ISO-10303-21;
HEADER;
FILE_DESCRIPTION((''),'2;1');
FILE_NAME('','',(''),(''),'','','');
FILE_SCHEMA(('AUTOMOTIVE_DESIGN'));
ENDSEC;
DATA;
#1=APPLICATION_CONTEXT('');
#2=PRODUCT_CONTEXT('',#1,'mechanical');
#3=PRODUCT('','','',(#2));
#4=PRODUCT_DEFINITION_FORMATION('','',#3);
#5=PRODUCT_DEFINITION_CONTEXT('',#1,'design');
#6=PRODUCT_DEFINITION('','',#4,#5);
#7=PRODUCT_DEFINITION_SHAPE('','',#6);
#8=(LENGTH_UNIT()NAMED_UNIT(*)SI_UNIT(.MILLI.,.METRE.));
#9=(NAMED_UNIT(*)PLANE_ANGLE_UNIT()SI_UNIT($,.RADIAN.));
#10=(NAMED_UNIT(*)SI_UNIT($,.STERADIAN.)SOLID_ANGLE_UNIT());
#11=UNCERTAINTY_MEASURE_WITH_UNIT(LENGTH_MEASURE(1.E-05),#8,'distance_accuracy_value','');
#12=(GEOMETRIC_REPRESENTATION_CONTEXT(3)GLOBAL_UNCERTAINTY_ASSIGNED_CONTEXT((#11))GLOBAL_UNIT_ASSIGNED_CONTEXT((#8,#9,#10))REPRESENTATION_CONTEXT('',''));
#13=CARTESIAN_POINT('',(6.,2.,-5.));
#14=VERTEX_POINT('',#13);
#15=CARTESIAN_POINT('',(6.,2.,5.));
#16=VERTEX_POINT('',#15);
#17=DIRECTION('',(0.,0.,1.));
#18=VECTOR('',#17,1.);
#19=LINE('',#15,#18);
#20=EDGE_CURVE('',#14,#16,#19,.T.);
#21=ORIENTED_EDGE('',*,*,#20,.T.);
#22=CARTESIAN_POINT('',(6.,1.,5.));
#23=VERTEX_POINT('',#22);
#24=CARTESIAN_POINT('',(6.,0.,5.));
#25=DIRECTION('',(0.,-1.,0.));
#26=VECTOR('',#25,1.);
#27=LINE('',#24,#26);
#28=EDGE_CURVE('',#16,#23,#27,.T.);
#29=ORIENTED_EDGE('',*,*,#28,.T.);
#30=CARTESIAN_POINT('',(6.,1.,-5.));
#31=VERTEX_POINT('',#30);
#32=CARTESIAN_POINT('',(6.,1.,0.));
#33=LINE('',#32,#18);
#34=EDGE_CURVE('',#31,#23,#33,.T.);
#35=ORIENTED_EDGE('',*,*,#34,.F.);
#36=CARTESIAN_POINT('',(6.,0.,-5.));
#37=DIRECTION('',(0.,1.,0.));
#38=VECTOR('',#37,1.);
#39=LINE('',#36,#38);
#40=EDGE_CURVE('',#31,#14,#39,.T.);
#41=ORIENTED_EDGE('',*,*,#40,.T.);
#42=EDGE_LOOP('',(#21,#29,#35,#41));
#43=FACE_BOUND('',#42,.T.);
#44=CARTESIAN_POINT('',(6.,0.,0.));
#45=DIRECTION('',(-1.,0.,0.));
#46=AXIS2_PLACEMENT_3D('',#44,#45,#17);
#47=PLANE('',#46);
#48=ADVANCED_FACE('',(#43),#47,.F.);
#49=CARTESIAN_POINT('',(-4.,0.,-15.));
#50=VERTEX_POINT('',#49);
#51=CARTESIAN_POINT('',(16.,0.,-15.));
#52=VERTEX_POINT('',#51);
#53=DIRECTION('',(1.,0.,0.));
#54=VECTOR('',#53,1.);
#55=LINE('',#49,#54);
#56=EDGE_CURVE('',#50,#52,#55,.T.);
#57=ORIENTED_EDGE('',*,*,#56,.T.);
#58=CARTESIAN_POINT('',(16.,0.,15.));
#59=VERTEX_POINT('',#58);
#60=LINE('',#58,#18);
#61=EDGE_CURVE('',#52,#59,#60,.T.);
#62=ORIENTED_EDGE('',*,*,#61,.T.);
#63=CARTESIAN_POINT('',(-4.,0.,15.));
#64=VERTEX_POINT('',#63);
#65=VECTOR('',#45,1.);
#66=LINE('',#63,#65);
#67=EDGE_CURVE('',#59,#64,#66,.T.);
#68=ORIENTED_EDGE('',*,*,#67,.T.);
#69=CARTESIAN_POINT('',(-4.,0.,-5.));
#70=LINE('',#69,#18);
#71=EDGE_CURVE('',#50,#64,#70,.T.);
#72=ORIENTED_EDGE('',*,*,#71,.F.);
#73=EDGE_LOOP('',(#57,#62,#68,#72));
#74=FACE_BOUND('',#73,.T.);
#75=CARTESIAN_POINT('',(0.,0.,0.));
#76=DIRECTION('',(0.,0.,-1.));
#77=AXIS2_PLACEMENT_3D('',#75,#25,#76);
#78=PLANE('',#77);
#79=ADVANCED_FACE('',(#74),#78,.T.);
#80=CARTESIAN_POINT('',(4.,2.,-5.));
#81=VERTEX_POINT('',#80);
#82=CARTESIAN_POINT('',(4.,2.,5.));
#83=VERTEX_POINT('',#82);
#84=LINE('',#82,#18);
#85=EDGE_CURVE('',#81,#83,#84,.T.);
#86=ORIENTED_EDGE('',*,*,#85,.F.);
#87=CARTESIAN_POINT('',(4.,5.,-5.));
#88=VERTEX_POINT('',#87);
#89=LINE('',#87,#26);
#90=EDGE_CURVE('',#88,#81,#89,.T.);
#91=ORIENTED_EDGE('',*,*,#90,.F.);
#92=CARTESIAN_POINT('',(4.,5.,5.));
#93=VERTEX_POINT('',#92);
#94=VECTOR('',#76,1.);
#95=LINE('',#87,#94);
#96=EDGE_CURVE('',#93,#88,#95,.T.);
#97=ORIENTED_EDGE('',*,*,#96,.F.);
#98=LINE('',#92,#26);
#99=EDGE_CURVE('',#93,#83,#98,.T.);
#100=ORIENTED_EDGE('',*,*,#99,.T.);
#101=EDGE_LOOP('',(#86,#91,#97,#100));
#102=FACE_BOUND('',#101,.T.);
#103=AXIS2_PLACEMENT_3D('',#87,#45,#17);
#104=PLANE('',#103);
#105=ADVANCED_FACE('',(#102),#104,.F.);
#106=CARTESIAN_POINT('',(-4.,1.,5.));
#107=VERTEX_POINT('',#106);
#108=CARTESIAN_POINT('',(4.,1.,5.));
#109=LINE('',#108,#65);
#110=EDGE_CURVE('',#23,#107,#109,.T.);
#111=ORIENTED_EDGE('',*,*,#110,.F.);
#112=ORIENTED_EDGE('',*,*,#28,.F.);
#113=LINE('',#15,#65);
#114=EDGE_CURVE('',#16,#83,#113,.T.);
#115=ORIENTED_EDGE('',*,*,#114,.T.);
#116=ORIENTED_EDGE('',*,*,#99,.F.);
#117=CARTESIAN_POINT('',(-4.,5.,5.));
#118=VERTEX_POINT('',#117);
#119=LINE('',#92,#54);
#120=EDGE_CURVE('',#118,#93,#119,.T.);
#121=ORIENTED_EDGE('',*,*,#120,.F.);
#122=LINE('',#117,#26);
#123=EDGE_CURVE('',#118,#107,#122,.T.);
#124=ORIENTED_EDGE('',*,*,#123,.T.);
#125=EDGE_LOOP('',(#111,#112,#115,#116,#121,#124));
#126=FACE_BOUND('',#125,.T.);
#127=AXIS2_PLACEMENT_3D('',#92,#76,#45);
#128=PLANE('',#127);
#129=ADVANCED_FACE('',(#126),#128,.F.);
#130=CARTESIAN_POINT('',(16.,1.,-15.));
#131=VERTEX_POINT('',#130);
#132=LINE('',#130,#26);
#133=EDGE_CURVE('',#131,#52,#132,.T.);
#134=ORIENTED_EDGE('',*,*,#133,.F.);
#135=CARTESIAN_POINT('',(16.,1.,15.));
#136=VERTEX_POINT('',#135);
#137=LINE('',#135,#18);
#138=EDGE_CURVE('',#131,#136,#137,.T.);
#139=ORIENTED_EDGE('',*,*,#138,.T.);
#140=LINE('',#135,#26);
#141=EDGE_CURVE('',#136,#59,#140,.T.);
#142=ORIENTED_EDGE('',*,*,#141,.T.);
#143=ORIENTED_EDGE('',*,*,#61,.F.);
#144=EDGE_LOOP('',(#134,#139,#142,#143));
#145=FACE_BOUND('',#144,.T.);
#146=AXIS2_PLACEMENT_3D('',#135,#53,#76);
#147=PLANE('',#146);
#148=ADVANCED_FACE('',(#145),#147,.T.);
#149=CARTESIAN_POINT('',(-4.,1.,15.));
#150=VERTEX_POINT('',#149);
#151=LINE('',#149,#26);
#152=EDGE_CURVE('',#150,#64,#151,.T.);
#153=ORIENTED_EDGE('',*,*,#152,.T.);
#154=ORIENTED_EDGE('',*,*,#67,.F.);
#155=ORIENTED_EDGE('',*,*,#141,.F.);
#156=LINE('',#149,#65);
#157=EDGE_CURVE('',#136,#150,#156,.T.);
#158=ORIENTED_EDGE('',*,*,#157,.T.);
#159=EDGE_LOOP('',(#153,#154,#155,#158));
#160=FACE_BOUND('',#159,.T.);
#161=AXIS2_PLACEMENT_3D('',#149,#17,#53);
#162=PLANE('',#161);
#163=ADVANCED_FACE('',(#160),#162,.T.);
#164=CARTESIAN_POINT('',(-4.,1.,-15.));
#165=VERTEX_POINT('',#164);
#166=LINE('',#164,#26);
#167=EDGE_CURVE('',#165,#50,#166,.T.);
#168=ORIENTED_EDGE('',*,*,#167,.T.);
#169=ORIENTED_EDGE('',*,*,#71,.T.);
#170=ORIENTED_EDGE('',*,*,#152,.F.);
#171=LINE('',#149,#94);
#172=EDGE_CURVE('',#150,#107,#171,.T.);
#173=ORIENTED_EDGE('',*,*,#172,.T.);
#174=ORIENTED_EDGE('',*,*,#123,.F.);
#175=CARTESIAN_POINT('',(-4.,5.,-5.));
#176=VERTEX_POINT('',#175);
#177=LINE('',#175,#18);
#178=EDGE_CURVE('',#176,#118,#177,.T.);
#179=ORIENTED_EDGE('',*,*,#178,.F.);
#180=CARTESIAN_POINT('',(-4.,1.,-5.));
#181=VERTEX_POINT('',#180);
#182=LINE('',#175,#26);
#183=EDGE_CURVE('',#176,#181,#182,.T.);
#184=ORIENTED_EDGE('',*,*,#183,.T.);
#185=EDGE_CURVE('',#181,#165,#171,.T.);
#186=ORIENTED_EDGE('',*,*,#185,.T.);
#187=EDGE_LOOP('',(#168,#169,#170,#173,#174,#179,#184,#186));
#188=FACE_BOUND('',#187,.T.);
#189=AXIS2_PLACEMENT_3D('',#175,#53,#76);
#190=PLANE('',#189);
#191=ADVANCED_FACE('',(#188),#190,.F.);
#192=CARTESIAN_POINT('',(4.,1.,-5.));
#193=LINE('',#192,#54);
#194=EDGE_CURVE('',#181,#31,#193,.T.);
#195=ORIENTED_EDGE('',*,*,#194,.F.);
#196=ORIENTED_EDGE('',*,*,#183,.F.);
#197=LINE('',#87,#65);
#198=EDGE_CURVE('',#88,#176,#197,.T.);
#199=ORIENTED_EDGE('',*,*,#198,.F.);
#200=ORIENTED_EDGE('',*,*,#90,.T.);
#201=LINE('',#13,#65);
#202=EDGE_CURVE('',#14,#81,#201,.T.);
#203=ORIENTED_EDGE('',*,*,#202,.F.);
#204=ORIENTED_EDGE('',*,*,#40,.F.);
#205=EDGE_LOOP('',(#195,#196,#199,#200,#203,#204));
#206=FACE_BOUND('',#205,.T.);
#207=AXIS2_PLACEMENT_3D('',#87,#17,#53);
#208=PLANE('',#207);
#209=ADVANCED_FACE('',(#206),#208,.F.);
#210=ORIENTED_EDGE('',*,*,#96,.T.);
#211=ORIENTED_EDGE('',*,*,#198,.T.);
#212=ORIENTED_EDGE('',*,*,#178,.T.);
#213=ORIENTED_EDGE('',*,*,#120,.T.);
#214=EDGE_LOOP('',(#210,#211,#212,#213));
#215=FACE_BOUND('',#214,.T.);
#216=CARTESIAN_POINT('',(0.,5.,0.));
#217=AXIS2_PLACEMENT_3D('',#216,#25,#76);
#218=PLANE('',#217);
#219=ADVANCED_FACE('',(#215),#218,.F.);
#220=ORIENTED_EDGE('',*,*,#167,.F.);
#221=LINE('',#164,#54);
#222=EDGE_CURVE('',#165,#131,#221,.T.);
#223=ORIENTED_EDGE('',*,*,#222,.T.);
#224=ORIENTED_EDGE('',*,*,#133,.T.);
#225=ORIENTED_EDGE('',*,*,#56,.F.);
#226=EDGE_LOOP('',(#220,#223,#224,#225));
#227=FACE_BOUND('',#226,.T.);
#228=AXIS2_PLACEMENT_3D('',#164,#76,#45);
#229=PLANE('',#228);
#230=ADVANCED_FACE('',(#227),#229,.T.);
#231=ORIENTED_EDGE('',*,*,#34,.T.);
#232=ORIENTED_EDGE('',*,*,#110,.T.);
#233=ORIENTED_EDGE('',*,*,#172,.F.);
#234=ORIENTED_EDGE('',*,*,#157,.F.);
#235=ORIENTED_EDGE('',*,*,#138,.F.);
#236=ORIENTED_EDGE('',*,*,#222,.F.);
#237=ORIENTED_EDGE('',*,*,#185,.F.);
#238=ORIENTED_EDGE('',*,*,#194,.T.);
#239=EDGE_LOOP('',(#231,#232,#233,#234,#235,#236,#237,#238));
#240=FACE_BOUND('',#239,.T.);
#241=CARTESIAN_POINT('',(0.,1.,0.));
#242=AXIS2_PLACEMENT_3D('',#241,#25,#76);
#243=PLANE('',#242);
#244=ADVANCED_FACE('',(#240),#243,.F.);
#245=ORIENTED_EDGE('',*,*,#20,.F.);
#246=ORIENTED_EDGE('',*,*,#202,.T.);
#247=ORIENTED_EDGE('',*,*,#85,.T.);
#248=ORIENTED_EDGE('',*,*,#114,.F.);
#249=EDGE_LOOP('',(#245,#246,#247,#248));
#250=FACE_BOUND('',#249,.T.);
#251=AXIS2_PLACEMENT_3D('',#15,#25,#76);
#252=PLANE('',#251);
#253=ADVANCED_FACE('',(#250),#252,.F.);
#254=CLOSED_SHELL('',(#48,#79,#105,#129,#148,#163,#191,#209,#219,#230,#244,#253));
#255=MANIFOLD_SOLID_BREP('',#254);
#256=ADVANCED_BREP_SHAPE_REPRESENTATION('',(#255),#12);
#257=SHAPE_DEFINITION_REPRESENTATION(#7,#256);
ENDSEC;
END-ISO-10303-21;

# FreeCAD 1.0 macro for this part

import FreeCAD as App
import Part
import Sketcher
from FreeCAD import Vector
Q = App.Units.Quantity


def add_polygon(sketch, points):
    """Adds a closed chain of lines whose ends are joined by coincident constraints."""
    first, n = sketch.GeometryCount, len(points)
    for a, b in zip(points, points[1:] + points[:1]):
        sketch.addGeometry(Part.LineSegment(App.Vector(*a, 0), App.Vector(*b, 0)), False)
    for i in range(n):
        sketch.addConstraint(Sketcher.Constraint("Coincident", first + i, 2, first + (i + 1) % n, 1))

doc = App.newDocument("Part")
body = doc.addObject("PartDesign::Body", "Body")

sketch1 = body.newObject("Sketcher::SketchObject", "Sketch")
sketch1.AttachmentSupport = (doc.getObject("XZ_Plane"), [""])
sketch1.MapMode = "FlatFace"
add_polygon(sketch1, [(-4, -5), (-4, 5), (4, 5), (4, -5)])
sketch1.addConstraint(Sketcher.Constraint("Vertical", 0))
sketch1.addConstraint(Sketcher.Constraint("Horizontal", 1))
sketch1.addConstraint(Sketcher.Constraint("Vertical", 2))
sketch1.addConstraint(Sketcher.Constraint("Horizontal", 3))
sketch1.addConstraint(Sketcher.Constraint("Symmetric", 0, 2, 2, 2, -1, 1))
sketch1.addConstraint(Sketcher.Constraint("DistanceX", 1, 1, 1, 2, Q("8 mm")))
sketch1.addConstraint(Sketcher.Constraint("DistanceY", 0, 1, 0, 2, Q("10 mm")))
pad1 = body.newObject("PartDesign::Pad", "Pad")
pad1.Profile = sketch1
pad1.Length = 5
pad1.Reversed = True

sketch2 = body.newObject("Sketcher::SketchObject", "Sketch001")
sketch2.AttachmentSupport = (doc.getObject("YZ_Plane"), [""])
sketch2.MapMode = "FlatFace"
sketch2.AttachmentOffset = App.Placement(Vector(0, 0, 4), App.Rotation())
add_polygon(sketch2, [(2, 5), (0, 5), (0, -5), (2, -5)])
sketch2.addConstraint(Sketcher.Constraint("Horizontal", 0))
sketch2.addConstraint(Sketcher.Constraint("Vertical", 1))
sketch2.addConstraint(Sketcher.Constraint("Horizontal", 2))
sketch2.addConstraint(Sketcher.Constraint("Vertical", 3))
sketch2.addConstraint(Sketcher.Constraint("Symmetric", 0, 2, 1, 2, -1, 1))
sketch2.addConstraint(Sketcher.Constraint("DistanceX", 0, 2, 0, 1, Q("2 mm")))
sketch2.addConstraint(Sketcher.Constraint("DistanceY", 1, 2, 1, 1, Q("10 mm")))
pad2 = body.newObject("PartDesign::Pad", "Pad001")
pad2.Profile = sketch2
pad2.Length = 2

sketch3 = body.newObject("Sketcher::SketchObject", "Sketch002")
sketch3.AttachmentSupport = (doc.getObject("XZ_Plane"), [""])
sketch3.MapMode = "FlatFace"
add_polygon(sketch3, [(-4, 15), (-4, -15), (16, -15), (16, 15)])
sketch3.addConstraint(Sketcher.Constraint("Vertical", 0))
sketch3.addConstraint(Sketcher.Constraint("Horizontal", 1))
sketch3.addConstraint(Sketcher.Constraint("Vertical", 2))
sketch3.addConstraint(Sketcher.Constraint("Horizontal", 3))
sketch3.addConstraint(Sketcher.Constraint("DistanceX", 1, 1, 1, 2, Q("20 mm")))
sketch3.addConstraint(Sketcher.Constraint("DistanceY", 0, 2, 0, 1, Q("30 mm")))
sketch3.addConstraint(Sketcher.Constraint("DistanceX", 0, 2, -1, 1, Q("4 mm")))
sketch3.addConstraint(Sketcher.Constraint("DistanceY", 0, 2, -1, 1, Q("15 mm")))
pad3 = body.newObject("PartDesign::Pad", "Pad002")
pad3.Profile = sketch3
pad3.Length = 1
pad3.Reversed = True

doc.recompute()
